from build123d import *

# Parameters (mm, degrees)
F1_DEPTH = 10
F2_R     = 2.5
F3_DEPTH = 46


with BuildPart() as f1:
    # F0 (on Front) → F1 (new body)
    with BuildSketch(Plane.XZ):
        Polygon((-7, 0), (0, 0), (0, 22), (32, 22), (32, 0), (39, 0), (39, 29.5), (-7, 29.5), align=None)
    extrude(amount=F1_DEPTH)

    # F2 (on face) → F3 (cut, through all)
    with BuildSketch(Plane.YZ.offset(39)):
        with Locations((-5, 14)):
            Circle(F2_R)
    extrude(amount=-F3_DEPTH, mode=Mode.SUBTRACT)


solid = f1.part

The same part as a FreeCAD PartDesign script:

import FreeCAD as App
import Part
import Sketcher


def add_polygon(sketch, points):
    """Adds a closed chain of lines whose ends are joined by coincident constraints."""
    first, n = sketch.GeometryCount, len(points)
    for a, b in zip(points, points[1:] + points[:1]):
        sketch.addGeometry(Part.LineSegment(App.Vector(*a, 0), App.Vector(*b, 0)), False)
    for i in range(n):
        sketch.addConstraint(Sketcher.Constraint("Coincident", first + i, 2, first + (i + 1) % n, 1))

doc = App.newDocument("Part")
params = doc.addObject("Spreadsheet::Sheet", "Params")
for row, (alias, value) in enumerate([
    ("sketch1_width", "7 mm"),
    ("sketch1_width2", "32 mm"),
    ("sketch1_height", "22 mm"),
    ("sketch1_height2", "29.5 mm"),
    ("pad1_length", "10 mm"),
    ("sketch2_diameter", "5 mm"),
], start=1):
    params.set(f"A{row}", alias)
    params.set(f"B{row}", "=" + value)
    params.setAlias(f"B{row}", alias)

body = doc.addObject("PartDesign::Body", "Body")

# Sketch on XZ plane
sketch1 = body.newObject("Sketcher::SketchObject", "Sketch")
sketch1.AttachmentSupport = (doc.getObject("XZ_Plane"), [""])
sketch1.MapMode = "FlatFace"
add_polygon(sketch1, [(-7, 0), (0, 0), (0, 22), (32, 22), (32, 0), (39, 0), (39, 30), (-7, 30)])  # lines 0-7
sketch1.addConstraint([
    Sketcher.Constraint("Horizontal", 0),
    Sketcher.Constraint("Vertical", 1),
    Sketcher.Constraint("Horizontal", 2),
    Sketcher.Constraint("Vertical", 3),
    Sketcher.Constraint("Horizontal", 4),
    Sketcher.Constraint("Vertical", 5),
    Sketcher.Constraint("Horizontal", 6),
    Sketcher.Constraint("Vertical", 7),
    Sketcher.Constraint("Coincident", 0, 2, -1, 1),
    Sketcher.Constraint("PointOnObject", 3, 2, -1),
    Sketcher.Constraint("Equal", 0, 4),
    Sketcher.Constraint("DistanceX", 0, 1, 0, 2, 7.0),
    Sketcher.Constraint("DistanceX", 2, 1, 2, 2, 32.0),
    Sketcher.Constraint("DistanceY", 1, 1, 1, 2, 22.0),
    Sketcher.Constraint("DistanceY", 5, 1, 5, 2, 29.5),
])
sketch1.setExpression("Constraints[19]", "Params.sketch1_width")
sketch1.setExpression("Constraints[20]", "Params.sketch1_width2")
sketch1.setExpression("Constraints[21]", "Params.sketch1_height")
sketch1.setExpression("Constraints[22]", "Params.sketch1_height2")
pad1 = body.newObject("PartDesign::Pad", "Pad")
pad1.Profile = sketch1
pad1.setExpression("Length", "Params.pad1_length")

# Sketch on YZ plane
sketch2 = body.newObject("Sketcher::SketchObject", "Sketch001")
sketch2.AttachmentSupport = (doc.getObject("YZ_Plane"), [""])
sketch2.MapMode = "FlatFace"
sketch2.AttachmentOffset = App.Placement(App.Vector(0, 0, 39), App.Rotation())
sketch2.addGeometry(Part.Circle(App.Vector(-5, 14, 0), App.Vector(0, 0, 1), 2.5), False)
sketch2.addConstraint([
    Sketcher.Constraint("Diameter", 0, 5.0),
    Sketcher.Constraint("DistanceX", 0, 3, -1, 1, 5.0),
    Sketcher.Constraint("DistanceY", -1, 1, 0, 3, 14.0),
])
sketch2.setExpression("Constraints[0]", "Params.sketch2_diameter")
pocket1 = body.newObject("PartDesign::Pocket", "Pocket")
pocket1.Profile = sketch2
pocket1.Type = "ThroughAll"

doc.recompute()
